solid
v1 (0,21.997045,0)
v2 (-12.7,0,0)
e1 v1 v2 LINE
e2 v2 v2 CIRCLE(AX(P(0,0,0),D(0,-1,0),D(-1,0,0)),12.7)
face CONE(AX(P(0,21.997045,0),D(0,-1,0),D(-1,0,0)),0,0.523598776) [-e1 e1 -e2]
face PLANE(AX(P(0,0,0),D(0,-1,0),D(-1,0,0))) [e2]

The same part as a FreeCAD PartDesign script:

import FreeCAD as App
import Part
import Sketcher
from FreeCAD import Vector
Q = App.Units.Quantity


def add_polygon(sketch, points):
    """Adds a closed chain of lines whose ends are joined by coincident constraints."""
    first, n = sketch.GeometryCount, len(points)
    for a, b in zip(points, points[1:] + points[:1]):
        sketch.addGeometry(Part.LineSegment(App.Vector(*a, 0), App.Vector(*b, 0)), False)
    for i in range(n):
        sketch.addConstraint(Sketcher.Constraint("Coincident", first + i, 2, first + (i + 1) % n, 1))

doc = App.newDocument("Part")
body = doc.addObject("PartDesign::Body", "Body")

sketch1 = body.newObject("Sketcher::SketchObject", "Sketch")
sketch1.AttachmentSupport = (doc.getObject("XY_Plane"), [""])
sketch1.MapMode = "FlatFace"
add_polygon(sketch1, [(0, 0), (0, 22), (-13, 0)])
sketch1.addConstraint([
    Sketcher.Constraint("Vertical", 0),
    Sketcher.Constraint("Horizontal", 2),
    Sketcher.Constraint("Coincident", 2, 2, -1, 1),
    Sketcher.Constraint("Distance", 1, Q("1 in")),
    Sketcher.Constraint("DistanceX", 2, 1, 2, 2, Q("0.5 in")),
])
revolution = body.newObject("PartDesign::Revolution", "Revolution")
revolution.Profile = sketch1
revolution.ReferenceAxis = (sketch1, ["V_Axis"])
revolution.Angle = 360

sketch2 = body.newObject("Sketcher::SketchObject", "Sketch001")
sketch2.AttachmentSupport = (doc.getObject("XY_Plane"), [""])
sketch2.MapMode = "FlatFace"
add_polygon(sketch2, [(0, 0), (0, 22), (-13, 0)])
sketch2.addConstraint([
    Sketcher.Constraint("Vertical", 0),
    Sketcher.Constraint("Horizontal", 2),
    Sketcher.Constraint("Coincident", 2, 2, -1, 1),
    Sketcher.Constraint("Distance", 1, Q("1 in")),
    Sketcher.Constraint("DistanceX", 2, 1, 2, 2, Q("0.5 in")),
])
revolution2 = body.newObject("PartDesign::Revolution", "Revolution001")
revolution2.Profile = sketch2
revolution2.ReferenceAxis = (sketch2, ["V_Axis"])
revolution2.Angle = 360

doc.recompute()
